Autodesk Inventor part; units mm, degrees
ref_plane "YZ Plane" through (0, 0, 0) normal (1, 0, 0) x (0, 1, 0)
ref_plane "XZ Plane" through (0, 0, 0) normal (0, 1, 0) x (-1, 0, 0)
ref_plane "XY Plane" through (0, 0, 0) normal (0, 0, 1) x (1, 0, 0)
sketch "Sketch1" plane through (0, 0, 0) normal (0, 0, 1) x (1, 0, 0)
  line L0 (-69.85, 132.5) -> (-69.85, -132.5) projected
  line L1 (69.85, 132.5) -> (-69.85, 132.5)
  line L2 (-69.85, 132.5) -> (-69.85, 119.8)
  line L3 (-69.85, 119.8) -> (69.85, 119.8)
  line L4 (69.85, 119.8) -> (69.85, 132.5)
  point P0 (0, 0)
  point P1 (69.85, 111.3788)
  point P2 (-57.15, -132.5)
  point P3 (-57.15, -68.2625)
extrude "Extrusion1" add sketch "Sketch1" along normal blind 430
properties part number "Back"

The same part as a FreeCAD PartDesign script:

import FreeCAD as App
import Part
import Sketcher
from FreeCAD import Vector
Q = App.Units.Quantity


def add_polygon(sketch, points):
    """Adds a closed chain of lines whose ends are joined by coincident constraints."""
    first, n = sketch.GeometryCount, len(points)
    for a, b in zip(points, points[1:] + points[:1]):
        sketch.addGeometry(Part.LineSegment(App.Vector(*a, 0), App.Vector(*b, 0)), False)
    for i in range(n):
        sketch.addConstraint(Sketcher.Constraint("Coincident", first + i, 2, first + (i + 1) % n, 1))

doc = App.newDocument("Part")
body = doc.addObject("PartDesign::Body", "Body")

# Sketch on XY plane
sketch1 = body.newObject("Sketcher::SketchObject", "Sketch")
sketch1.AttachmentSupport = (doc.getObject("XY_Plane"), [""])
sketch1.MapMode = "FlatFace"
add_polygon(sketch1, [(70, 132), (-70, 132), (-70, 120), (70, 120)])  # lines 0-3
sketch1.addConstraint([
    Sketcher.Constraint("Horizontal", 0),
    Sketcher.Constraint("Vertical", 1),
    Sketcher.Constraint("Horizontal", 2),
    Sketcher.Constraint("Vertical", 3),
    Sketcher.Constraint("DistanceX", 0, 2, 0, 1, Q("5.5 in")),
    Sketcher.Constraint("DistanceY", 1, 2, 1, 1, Q("0.5 in")),
    Sketcher.Constraint("DistanceX", 0, 2, -1, 1, Q("2.75 in")),
    Sketcher.Constraint("DistanceY", -1, 1, 0, 2, Q("132.5 mm")),
])
pad1 = body.newObject("PartDesign::Pad", "Pad")
pad1.Profile = sketch1
pad1.Length = 430

doc.recompute()
